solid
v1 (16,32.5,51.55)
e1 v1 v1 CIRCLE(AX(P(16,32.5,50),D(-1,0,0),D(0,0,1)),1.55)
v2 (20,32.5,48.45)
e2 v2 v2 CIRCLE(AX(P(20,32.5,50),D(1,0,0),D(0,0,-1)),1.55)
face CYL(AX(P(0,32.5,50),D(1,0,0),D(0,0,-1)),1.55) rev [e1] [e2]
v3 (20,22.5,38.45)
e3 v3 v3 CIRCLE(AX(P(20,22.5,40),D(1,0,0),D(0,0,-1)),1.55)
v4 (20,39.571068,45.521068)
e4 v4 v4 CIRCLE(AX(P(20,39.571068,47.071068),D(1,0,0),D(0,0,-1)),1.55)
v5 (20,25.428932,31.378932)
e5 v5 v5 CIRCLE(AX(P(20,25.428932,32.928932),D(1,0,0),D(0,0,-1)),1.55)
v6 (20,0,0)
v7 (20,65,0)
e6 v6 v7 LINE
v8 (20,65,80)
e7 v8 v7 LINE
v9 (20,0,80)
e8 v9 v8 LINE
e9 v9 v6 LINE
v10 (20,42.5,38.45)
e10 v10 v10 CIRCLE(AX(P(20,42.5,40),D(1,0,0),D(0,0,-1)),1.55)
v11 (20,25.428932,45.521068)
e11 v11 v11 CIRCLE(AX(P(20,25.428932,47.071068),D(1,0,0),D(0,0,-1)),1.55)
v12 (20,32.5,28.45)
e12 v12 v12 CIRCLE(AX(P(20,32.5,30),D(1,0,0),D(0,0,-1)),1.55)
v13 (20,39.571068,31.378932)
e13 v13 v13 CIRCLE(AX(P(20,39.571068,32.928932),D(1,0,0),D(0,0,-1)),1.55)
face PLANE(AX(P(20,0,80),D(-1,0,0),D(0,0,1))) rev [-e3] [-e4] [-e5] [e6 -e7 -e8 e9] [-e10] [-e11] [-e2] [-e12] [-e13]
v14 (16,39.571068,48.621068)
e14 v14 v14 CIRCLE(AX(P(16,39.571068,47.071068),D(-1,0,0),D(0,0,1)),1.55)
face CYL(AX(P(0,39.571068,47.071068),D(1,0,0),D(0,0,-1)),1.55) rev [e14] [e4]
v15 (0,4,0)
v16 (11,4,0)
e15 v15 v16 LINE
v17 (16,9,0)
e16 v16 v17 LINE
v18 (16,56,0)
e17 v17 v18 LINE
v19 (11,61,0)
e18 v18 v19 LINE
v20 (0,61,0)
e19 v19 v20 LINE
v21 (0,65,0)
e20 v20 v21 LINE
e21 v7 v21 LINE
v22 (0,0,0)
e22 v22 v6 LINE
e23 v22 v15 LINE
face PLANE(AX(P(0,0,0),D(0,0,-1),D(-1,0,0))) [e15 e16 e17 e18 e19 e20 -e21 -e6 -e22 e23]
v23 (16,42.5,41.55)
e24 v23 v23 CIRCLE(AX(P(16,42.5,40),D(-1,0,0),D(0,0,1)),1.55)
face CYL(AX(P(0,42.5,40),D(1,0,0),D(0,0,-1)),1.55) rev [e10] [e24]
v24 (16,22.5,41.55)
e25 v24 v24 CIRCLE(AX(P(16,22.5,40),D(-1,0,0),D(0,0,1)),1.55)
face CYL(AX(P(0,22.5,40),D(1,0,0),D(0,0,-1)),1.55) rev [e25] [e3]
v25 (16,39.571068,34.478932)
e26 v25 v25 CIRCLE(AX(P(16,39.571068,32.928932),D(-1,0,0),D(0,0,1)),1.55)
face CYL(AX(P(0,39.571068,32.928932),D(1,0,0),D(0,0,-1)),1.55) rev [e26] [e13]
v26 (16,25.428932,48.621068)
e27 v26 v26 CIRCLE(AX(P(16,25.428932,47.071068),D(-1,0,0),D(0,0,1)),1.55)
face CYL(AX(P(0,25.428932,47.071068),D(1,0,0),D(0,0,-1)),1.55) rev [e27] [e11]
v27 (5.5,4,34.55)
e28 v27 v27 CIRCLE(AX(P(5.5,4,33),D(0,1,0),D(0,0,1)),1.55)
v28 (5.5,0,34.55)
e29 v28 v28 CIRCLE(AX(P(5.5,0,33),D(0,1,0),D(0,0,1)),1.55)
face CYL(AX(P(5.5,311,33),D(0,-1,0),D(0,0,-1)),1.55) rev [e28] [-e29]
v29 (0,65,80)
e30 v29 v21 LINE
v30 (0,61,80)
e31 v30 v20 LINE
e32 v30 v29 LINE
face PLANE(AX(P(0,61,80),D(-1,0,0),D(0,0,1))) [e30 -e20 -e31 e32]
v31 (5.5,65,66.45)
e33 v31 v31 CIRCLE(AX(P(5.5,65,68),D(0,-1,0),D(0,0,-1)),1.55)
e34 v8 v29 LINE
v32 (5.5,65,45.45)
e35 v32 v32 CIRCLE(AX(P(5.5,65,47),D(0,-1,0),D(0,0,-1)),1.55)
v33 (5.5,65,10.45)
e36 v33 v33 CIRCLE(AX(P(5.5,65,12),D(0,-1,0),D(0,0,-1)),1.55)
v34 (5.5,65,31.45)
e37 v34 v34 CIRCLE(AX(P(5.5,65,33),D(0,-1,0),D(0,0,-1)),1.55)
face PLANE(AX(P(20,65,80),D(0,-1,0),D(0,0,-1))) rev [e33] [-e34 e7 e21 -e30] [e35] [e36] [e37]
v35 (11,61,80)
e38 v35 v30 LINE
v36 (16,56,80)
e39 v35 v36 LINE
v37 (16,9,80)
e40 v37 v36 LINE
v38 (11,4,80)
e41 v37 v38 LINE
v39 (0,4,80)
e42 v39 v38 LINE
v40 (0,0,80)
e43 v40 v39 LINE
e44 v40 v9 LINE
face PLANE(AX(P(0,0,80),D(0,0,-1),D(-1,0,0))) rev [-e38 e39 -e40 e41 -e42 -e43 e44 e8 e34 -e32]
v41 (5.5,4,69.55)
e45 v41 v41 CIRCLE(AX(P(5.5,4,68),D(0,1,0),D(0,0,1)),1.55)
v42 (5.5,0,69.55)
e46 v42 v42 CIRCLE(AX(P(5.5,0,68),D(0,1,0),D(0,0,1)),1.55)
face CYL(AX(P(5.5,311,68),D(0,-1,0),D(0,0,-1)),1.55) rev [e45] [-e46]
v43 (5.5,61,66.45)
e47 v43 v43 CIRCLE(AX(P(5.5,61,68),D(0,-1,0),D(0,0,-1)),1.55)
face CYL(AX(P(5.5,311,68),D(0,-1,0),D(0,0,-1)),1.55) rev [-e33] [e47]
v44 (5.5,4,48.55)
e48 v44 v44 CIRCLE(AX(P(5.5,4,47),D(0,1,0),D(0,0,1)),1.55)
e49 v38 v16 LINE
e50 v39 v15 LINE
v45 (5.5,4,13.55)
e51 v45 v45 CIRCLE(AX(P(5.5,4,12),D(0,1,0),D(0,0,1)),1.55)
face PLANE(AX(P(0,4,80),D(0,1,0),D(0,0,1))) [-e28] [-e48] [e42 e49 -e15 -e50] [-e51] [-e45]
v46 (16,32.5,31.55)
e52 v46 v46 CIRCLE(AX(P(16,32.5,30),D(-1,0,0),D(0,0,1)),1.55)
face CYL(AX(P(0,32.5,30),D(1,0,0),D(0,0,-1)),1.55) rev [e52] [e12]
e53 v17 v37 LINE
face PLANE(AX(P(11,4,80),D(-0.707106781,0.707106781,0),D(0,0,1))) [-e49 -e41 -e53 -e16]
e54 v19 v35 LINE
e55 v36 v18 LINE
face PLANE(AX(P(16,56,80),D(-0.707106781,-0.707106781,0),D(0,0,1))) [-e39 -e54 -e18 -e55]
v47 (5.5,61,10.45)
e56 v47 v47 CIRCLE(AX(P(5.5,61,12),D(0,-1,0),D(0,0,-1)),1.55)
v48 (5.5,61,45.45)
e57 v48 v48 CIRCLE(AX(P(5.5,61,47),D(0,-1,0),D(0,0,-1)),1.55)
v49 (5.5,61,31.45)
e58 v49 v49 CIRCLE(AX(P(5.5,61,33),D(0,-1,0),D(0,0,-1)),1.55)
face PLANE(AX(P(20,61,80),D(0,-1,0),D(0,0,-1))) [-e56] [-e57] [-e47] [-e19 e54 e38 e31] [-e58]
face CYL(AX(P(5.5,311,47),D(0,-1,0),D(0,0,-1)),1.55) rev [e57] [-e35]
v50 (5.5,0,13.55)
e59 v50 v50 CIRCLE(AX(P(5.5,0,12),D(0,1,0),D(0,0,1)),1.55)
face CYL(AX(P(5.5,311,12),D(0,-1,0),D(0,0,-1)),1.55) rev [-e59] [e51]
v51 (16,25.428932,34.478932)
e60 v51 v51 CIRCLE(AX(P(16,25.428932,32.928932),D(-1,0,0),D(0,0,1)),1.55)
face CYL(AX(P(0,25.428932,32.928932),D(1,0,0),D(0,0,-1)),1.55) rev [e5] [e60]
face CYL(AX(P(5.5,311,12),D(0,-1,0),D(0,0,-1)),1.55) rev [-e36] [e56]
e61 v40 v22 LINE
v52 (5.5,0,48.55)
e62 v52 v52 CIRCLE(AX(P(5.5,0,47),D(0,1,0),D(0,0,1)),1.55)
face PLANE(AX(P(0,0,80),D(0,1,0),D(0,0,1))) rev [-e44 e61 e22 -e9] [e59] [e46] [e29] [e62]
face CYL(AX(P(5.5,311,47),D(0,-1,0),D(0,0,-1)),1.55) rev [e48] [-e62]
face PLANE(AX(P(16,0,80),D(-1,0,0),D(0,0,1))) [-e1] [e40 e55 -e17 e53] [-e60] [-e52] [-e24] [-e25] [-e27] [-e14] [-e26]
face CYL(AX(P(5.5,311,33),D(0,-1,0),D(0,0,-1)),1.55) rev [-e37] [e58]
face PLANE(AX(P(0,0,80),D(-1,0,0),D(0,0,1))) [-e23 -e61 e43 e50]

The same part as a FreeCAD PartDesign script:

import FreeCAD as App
import Part
import Sketcher
from FreeCAD import Vector


def edges_at(feature, points):
    """Names of the edges that pass closest to the given points."""
    edges = feature.Shape.Edges
    near = lambda p: min(range(len(edges)), key=lambda i: edges[i].distToShape(Part.Vertex(*p))[0])
    return sorted({f"Edge{near(p) + 1}" for p in points})


def add_polygon(sketch, points):
    """Adds a closed chain of lines whose ends are joined by coincident constraints."""
    first, n = sketch.GeometryCount, len(points)
    for a, b in zip(points, points[1:] + points[:1]):
        sketch.addGeometry(Part.LineSegment(App.Vector(*a, 0), App.Vector(*b, 0)), False)
    for i in range(n):
        sketch.addConstraint(Sketcher.Constraint("Coincident", first + i, 2, first + (i + 1) % n, 1))

doc = App.newDocument("Part")
body = doc.addObject("PartDesign::Body", "Body")

sketch1 = doc.addObject("Sketcher::SketchObject", "Sketch")
body.addObject(sketch1)
sketch1.AttachmentSupport = (doc.XY_Plane, [""])
sketch1.MapMode = "FlatFace"
add_polygon(sketch1, [(0, 0), (20, 0), (20, 65), (0, 65), (0, 61), (16, 61), (16, 4), (0, 4)])
sketch1.addConstraint(Sketcher.Constraint("Horizontal", 0))
sketch1.addConstraint(Sketcher.Constraint("Vertical", 1))
sketch1.addConstraint(Sketcher.Constraint("Horizontal", 2))
sketch1.addConstraint(Sketcher.Constraint("Vertical", 3))
sketch1.addConstraint(Sketcher.Constraint("Horizontal", 4))
sketch1.addConstraint(Sketcher.Constraint("Vertical", 5))
sketch1.addConstraint(Sketcher.Constraint("Horizontal", 6))
sketch1.addConstraint(Sketcher.Constraint("Vertical", 7))
sketch1.addConstraint(Sketcher.Constraint("Coincident", 7, 2, -1, 1))
sketch1.addConstraint(Sketcher.Constraint("PointOnObject", 2, 2, -2))
sketch1.addConstraint(Sketcher.Constraint("Equal", 3, 7))
sketch1.addConstraint(Sketcher.Constraint("DistanceX", 0, 1, 0, 2, 20.0))
sketch1.addConstraint(Sketcher.Constraint("DistanceX", 4, 1, 4, 2, 16.0))
sketch1.addConstraint(Sketcher.Constraint("DistanceY", 1, 1, 1, 2, 65.0))
sketch1.addConstraint(Sketcher.Constraint("DistanceY", 3, 2, 3, 1, 4.0))
pad1 = doc.addObject("PartDesign::Pad", "Pad")
body.addObject(pad1)
pad1.Profile = sketch1
pad1.Length = 80
doc.recompute()

chamfer = doc.addObject("PartDesign::Chamfer", "Chamfer")
body.addObject(chamfer)
chamfer.Base = (pad1, edges_at(pad1, [(16, 4, 40), (16, 61, 40)]))
chamfer.Size = 5

sketch2 = doc.addObject("Sketcher::SketchObject", "Sketch001")
body.addObject(sketch2)
sketch2.AttachmentSupport = (doc.XZ_Plane, [""])
sketch2.MapMode = "FlatFace"
sketch2.AttachmentOffset = App.Placement(Vector(0, 0, -61), App.Rotation())
sketch2.addGeometry(Part.Circle(Vector(5.5, 12, 0), Vector(0, 0, 1), 1.55), False)
sketch2.addGeometry(Part.Circle(Vector(5.5, 68, 0), Vector(0, 0, 1), 1.55), False)
sketch2.addGeometry(Part.Circle(Vector(5.5, 33, 0), Vector(0, 0, 1), 1.55), False)
sketch2.addGeometry(Part.Circle(Vector(5.5, 47, 0), Vector(0, 0, 1), 1.55), False)
sketch2.addConstraint(Sketcher.Constraint("Equal", 0, 1))
sketch2.addConstraint(Sketcher.Constraint("Equal", 1, 2))
sketch2.addConstraint(Sketcher.Constraint("Equal", 2, 3))
sketch2.addConstraint(Sketcher.Constraint("Vertical", 0, 3, 1, 3))
sketch2.addConstraint(Sketcher.Constraint("Vertical", 1, 3, 2, 3))
sketch2.addConstraint(Sketcher.Constraint("Vertical", 2, 3, 3, 3))
sketch2.addConstraint(Sketcher.Constraint("Diameter", 0, 3.1))
sketch2.addConstraint(Sketcher.Constraint("DistanceY", -1, 1, 0, 3, 12.0))
sketch2.addConstraint(Sketcher.Constraint("DistanceY", -1, 1, 1, 3, 68.0))
sketch2.addConstraint(Sketcher.Constraint("DistanceY", -1, 1, 2, 3, 33.0))
sketch2.addConstraint(Sketcher.Constraint("DistanceY", -1, 1, 3, 3, 47.0))
sketch2.addConstraint(Sketcher.Constraint("DistanceX", -1, 1, 0, 3, 5.5))
pocket1 = doc.addObject("PartDesign::Pocket", "Pocket")
body.addObject(pocket1)
pocket1.Profile = sketch2
pocket1.Length = 500
pocket1.Midplane = True

sketch3 = doc.addObject("Sketcher::SketchObject", "Sketch002")
body.addObject(sketch3)
sketch3.AttachmentSupport = (doc.YZ_Plane, [""])
sketch3.MapMode = "FlatFace"
sketch3.AttachmentOffset = App.Placement(Vector(0, 0, 20), App.Rotation())
sketch3.addGeometry(Part.Circle(Vector(42.5, 40, 0), Vector(0, 0, 1), 1.55), False)
sketch3.addGeometry(Part.Circle(Vector(39.571068, 32.928932, 0), Vector(0, 0, 1), 1.55), False)
sketch3.addGeometry(Part.Circle(Vector(32.5, 30, 0), Vector(0, 0, 1), 1.55), False)
sketch3.addGeometry(Part.Circle(Vector(25.428932, 32.928932, 0), Vector(0, 0, 1), 1.55), False)
sketch3.addGeometry(Part.Circle(Vector(22.5, 40, 0), Vector(0, 0, 1), 1.55), False)
sketch3.addGeometry(Part.Circle(Vector(25.428932, 47.071068, 0), Vector(0, 0, 1), 1.55), False)
sketch3.addGeometry(Part.Circle(Vector(32.5, 50, 0), Vector(0, 0, 1), 1.55), False)
sketch3.addGeometry(Part.Circle(Vector(39.571068, 47.071068, 0), Vector(0, 0, 1), 1.55), False)
sketch3.addConstraint(Sketcher.Constraint("Equal", 0, 1))
sketch3.addConstraint(Sketcher.Constraint("Equal", 1, 2))
sketch3.addConstraint(Sketcher.Constraint("Equal", 2, 3))
sketch3.addConstraint(Sketcher.Constraint("Equal", 3, 4))
sketch3.addConstraint(Sketcher.Constraint("Equal", 4, 5))
sketch3.addConstraint(Sketcher.Constraint("Equal", 5, 6))
sketch3.addConstraint(Sketcher.Constraint("Equal", 6, 7))
sketch3.addConstraint(Sketcher.Constraint("Horizontal", 1, 3, 3, 3))
sketch3.addConstraint(Sketcher.Constraint("Horizontal", 0, 3, 4, 3))
sketch3.addConstraint(Sketcher.Constraint("Horizontal", 5, 3, 7, 3))
sketch3.addConstraint(Sketcher.Constraint("Vertical", 3, 3, 5, 3))
sketch3.addConstraint(Sketcher.Constraint("Vertical", 2, 3, 6, 3))
sketch3.addConstraint(Sketcher.Constraint("Vertical", 1, 3, 7, 3))
sketch3.addConstraint(Sketcher.Constraint("Diameter", 0, 3.1))
sketch3.addConstraint(Sketcher.Constraint("DistanceY", -1, 1, 0, 3, 40.0))
sketch3.addConstraint(Sketcher.Constraint("DistanceY", -1, 1, 2, 3, 30.0))
sketch3.addConstraint(Sketcher.Constraint("DistanceY", -1, 1, 6, 3, 50.0))
sketch3.addConstraint(Sketcher.Constraint("DistanceX", 2, 3, 0, 3, 10.0))
sketch3.addConstraint(Sketcher.Constraint("DistanceX", 4, 3, 2, 3, 10.0))
sketch3.addConstraint(Sketcher.Constraint("DistanceX", -1, 1, 0, 3, 42.5))
sketch3.addConstraint(Sketcher.Constraint("DistanceX", -1, 1, 1, 3, 39.571068))
sketch3.addConstraint(Sketcher.Constraint("DistanceY", -1, 1, 1, 3, 32.928932))
sketch3.addConstraint(Sketcher.Constraint("DistanceX", -1, 1, 3, 3, 25.428932))
sketch3.addConstraint(Sketcher.Constraint("DistanceY", -1, 1, 5, 3, 47.071068))
pocket2 = doc.addObject("PartDesign::Pocket", "Pocket001")
body.addObject(pocket2)
pocket2.Profile = sketch3
pocket2.Type = "ThroughAll"

doc.recompute()
